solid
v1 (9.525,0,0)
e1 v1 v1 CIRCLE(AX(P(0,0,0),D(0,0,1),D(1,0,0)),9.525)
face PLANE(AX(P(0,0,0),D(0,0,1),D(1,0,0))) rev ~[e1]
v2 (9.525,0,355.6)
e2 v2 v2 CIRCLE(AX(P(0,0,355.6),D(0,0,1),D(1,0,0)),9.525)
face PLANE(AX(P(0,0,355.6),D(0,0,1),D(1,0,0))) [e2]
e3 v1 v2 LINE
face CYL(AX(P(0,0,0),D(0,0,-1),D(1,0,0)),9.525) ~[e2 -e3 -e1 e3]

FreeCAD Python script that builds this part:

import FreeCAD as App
import Part
import Sketcher
Q = App.Units.Quantity

doc = App.newDocument("Part")
body = doc.addObject("PartDesign::Body", "Body")

sketch1 = doc.addObject("Sketcher::SketchObject", "Sketch")
body.addObject(sketch1)
sketch1.AttachmentSupport = (doc.XY_Plane, [""])
sketch1.MapMode = "FlatFace"
sketch1.addGeometry(Part.Circle(App.Vector(0, 0, 0), App.Vector(0, 0, 1), 10), False)
sketch1.addConstraint([
    Sketcher.Constraint("Coincident", 0, 3, -1, 1),
    Sketcher.Constraint("Diameter", 0, Q("0.75 in")),
])
pad1 = doc.addObject("PartDesign::Pad", "Pad")
body.addObject(pad1)
pad1.Profile = sketch1
pad1.Length = Q("14 in")

doc.recompute()
